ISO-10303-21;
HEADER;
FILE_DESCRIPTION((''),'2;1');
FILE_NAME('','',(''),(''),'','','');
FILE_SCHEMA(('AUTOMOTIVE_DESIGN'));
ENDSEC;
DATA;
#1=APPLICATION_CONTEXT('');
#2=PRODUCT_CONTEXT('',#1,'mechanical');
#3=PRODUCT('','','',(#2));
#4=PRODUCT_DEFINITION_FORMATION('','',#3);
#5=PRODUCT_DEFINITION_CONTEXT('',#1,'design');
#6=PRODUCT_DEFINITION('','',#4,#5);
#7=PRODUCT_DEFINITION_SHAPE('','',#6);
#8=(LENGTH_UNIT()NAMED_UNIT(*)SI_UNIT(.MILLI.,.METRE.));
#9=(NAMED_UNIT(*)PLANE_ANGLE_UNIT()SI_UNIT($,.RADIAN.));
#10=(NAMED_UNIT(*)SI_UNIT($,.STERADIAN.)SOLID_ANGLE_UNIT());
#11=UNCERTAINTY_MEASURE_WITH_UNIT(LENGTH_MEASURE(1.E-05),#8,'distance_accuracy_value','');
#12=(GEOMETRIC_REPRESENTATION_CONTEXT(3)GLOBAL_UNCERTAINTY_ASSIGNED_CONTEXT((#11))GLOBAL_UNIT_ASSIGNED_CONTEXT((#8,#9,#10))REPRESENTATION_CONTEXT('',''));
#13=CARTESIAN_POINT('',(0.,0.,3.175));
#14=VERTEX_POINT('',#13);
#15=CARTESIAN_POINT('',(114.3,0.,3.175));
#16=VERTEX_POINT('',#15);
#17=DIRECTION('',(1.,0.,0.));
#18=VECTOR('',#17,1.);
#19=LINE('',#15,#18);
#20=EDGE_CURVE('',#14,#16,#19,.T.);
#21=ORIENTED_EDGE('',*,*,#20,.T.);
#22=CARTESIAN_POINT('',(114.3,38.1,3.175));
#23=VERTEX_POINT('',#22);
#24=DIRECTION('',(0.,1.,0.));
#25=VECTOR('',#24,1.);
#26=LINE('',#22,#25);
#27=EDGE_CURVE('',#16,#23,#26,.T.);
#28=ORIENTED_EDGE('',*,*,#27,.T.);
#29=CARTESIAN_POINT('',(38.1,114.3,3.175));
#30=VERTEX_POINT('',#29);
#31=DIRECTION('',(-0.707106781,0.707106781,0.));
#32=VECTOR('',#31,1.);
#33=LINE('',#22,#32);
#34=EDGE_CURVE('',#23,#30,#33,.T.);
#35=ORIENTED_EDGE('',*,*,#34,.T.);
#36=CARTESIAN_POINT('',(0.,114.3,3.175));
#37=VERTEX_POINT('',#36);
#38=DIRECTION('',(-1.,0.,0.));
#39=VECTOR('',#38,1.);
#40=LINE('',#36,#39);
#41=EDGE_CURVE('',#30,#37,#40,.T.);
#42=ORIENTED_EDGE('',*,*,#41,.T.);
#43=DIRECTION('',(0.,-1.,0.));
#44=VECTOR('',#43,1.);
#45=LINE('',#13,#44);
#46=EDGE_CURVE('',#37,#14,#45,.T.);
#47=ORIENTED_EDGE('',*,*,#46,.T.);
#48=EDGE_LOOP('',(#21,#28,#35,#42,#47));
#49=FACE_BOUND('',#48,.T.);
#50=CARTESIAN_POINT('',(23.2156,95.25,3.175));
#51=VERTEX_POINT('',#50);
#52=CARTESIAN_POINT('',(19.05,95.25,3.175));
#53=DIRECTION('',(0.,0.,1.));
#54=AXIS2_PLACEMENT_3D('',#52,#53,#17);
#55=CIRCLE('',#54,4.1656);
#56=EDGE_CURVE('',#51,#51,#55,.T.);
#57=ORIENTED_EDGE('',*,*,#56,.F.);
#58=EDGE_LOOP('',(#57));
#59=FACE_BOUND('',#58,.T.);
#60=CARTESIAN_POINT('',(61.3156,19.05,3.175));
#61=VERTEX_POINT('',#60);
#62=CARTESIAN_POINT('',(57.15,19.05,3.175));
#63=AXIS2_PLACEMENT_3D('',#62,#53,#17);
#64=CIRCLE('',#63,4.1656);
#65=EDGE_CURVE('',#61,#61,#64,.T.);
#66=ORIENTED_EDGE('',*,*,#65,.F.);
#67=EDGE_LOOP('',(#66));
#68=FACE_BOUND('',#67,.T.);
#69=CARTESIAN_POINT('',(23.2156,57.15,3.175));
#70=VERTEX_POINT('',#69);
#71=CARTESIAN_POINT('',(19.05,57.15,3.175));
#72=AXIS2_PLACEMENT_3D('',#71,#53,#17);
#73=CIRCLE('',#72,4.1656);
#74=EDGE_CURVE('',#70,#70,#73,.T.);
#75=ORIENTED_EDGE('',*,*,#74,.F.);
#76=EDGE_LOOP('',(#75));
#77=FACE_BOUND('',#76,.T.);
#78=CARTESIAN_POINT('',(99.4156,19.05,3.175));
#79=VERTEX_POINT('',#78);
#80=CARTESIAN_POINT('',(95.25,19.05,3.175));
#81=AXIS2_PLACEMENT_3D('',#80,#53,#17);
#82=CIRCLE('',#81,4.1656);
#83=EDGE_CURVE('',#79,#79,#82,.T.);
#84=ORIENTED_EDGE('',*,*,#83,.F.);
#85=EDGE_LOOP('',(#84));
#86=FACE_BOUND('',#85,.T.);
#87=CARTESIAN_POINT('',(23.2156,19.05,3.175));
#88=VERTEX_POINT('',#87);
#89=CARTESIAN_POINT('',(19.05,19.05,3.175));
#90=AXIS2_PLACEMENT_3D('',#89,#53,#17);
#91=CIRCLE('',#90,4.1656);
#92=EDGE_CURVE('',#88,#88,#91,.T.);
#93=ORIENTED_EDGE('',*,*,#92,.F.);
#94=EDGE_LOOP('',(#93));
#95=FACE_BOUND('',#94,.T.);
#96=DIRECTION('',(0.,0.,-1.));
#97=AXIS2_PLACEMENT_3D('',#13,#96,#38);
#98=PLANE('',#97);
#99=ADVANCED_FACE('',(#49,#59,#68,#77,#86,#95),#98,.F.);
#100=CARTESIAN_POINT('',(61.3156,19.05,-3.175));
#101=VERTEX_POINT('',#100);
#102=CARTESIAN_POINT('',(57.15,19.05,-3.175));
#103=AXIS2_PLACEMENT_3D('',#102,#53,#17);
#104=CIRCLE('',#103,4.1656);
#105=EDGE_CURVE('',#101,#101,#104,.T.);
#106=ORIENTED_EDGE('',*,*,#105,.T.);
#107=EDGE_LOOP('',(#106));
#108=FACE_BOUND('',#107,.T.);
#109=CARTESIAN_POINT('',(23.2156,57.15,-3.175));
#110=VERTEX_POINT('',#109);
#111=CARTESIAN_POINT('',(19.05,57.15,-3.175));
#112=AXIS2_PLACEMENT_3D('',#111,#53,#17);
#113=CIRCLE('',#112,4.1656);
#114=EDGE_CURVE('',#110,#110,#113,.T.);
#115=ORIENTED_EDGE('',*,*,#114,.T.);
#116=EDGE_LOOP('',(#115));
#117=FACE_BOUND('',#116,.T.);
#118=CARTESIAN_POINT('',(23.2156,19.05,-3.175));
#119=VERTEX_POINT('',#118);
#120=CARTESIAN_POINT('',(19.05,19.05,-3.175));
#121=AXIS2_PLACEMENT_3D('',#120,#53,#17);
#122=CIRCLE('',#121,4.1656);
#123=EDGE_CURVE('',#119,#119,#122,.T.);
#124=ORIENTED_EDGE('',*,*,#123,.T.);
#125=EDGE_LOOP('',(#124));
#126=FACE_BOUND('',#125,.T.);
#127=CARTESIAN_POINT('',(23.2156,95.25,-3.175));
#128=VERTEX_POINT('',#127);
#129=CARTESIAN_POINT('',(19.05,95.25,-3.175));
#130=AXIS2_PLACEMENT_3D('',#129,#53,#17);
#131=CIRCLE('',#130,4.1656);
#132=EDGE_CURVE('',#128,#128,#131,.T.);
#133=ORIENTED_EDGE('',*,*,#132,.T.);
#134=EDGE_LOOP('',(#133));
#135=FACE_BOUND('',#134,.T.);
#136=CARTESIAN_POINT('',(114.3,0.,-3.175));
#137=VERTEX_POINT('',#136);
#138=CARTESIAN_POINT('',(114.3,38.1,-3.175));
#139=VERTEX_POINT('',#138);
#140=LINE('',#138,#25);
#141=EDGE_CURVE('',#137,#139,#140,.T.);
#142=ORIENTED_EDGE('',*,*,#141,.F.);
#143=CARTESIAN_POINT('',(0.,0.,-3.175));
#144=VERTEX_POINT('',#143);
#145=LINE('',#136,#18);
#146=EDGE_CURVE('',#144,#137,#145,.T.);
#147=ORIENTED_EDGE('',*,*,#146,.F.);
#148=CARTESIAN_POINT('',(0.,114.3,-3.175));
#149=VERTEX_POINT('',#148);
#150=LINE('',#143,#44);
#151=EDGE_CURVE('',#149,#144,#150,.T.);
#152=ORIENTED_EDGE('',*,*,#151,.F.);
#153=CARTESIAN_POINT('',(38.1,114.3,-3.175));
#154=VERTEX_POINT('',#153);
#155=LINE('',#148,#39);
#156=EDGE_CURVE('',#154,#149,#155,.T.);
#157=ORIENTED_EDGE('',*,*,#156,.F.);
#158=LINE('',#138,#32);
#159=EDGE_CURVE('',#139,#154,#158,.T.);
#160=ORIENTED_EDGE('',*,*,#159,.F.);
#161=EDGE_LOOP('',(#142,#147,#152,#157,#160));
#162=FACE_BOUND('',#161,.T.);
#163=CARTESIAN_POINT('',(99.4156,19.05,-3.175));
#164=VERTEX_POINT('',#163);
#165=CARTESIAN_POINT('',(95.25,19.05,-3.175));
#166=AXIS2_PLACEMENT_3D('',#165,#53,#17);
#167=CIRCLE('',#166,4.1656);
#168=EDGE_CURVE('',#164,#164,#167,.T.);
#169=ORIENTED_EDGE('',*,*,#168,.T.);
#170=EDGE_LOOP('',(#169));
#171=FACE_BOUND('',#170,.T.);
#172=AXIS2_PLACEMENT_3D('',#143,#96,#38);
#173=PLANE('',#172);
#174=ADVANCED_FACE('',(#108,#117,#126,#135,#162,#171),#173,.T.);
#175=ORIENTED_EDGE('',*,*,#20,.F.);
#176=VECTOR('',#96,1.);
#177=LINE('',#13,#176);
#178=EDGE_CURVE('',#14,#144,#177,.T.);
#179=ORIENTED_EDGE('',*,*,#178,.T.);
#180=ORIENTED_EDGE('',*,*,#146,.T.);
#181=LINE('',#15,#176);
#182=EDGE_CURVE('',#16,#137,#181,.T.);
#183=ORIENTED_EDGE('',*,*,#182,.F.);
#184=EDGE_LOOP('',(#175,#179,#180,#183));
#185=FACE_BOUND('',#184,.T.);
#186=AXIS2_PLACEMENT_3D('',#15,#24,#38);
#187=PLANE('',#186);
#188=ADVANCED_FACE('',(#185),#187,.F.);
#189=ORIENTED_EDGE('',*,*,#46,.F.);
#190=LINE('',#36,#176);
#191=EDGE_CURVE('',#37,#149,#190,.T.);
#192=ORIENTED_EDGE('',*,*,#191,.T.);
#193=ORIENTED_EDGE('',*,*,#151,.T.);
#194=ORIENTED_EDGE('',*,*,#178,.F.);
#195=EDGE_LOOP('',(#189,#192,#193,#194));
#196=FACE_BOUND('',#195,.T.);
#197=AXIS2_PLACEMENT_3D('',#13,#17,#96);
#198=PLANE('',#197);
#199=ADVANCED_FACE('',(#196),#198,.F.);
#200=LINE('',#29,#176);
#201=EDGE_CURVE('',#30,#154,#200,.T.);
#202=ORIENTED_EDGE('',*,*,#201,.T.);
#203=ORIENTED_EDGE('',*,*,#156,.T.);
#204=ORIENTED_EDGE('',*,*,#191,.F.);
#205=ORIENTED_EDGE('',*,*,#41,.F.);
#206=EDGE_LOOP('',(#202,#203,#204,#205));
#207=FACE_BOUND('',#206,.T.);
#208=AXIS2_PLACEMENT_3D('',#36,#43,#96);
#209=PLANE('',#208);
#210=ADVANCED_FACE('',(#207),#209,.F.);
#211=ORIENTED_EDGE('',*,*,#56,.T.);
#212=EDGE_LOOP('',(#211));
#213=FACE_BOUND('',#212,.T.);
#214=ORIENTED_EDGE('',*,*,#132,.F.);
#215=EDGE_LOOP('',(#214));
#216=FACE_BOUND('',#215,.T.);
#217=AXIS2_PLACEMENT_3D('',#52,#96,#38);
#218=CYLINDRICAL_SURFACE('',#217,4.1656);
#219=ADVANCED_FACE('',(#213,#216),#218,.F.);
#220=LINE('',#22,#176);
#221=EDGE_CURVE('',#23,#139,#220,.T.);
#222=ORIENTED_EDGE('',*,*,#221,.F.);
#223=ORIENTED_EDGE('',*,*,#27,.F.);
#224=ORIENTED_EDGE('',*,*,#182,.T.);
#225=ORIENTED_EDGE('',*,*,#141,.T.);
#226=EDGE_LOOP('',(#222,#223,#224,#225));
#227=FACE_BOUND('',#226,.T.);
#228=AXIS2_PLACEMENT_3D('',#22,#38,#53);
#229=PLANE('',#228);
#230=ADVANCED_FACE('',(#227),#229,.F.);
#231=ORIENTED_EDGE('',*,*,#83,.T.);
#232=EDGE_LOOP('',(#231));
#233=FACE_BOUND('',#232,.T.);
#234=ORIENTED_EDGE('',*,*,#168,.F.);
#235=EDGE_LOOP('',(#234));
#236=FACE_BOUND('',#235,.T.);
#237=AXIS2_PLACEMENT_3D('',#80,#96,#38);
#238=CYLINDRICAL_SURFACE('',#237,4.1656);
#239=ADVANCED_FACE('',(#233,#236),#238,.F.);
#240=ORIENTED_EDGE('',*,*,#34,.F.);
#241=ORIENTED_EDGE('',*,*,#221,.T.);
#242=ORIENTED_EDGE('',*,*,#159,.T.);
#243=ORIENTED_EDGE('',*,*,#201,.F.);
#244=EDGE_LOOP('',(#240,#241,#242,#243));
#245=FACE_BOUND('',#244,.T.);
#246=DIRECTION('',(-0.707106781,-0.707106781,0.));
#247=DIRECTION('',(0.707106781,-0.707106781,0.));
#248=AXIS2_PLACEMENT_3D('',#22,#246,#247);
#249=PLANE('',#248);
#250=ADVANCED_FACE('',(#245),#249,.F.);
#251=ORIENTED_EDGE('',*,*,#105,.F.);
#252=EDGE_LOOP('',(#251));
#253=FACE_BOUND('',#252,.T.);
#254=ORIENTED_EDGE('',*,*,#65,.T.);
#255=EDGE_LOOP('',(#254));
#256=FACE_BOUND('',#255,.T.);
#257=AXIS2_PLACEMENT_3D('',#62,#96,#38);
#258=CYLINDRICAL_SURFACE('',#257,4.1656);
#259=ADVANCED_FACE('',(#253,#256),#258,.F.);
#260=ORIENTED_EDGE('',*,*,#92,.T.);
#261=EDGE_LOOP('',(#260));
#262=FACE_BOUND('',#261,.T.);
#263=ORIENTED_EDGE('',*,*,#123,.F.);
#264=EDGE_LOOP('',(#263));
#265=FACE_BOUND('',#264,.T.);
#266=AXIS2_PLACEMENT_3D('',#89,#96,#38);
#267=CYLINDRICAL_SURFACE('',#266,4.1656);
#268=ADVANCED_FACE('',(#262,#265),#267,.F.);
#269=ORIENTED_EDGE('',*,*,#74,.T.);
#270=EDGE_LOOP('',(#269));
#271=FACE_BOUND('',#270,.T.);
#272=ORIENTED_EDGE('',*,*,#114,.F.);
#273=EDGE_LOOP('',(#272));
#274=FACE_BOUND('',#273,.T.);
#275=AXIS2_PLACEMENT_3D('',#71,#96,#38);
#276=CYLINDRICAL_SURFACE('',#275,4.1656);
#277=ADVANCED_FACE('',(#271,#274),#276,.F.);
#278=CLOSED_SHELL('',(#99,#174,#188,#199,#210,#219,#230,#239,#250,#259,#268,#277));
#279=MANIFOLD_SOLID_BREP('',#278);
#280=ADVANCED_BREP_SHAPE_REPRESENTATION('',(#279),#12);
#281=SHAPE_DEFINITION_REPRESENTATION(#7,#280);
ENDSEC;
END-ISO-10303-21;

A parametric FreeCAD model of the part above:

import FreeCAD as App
import Part
import Sketcher
from FreeCAD import Vector
Q = App.Units.Quantity

doc = App.newDocument("Part")
body = doc.addObject("PartDesign::Body", "Body")

# Sketch on XY plane
sketch1 = body.newObject("Sketcher::SketchObject", "Sketch")
sketch1.AttachmentSupport = (doc.getObject("XY_Plane"), [""])
sketch1.MapMode = "FlatFace"
sketch1.addGeometry([
    Part.LineSegment(Vector(0, 114.3, 0), Vector(0, 0, 0)),  # 0
    Part.LineSegment(Vector(0, 0, 0), Vector(114.3, 0, 0)),  # 1
    Part.LineSegment(Vector(114.3, 0, 0), Vector(114.3, 38.1, 0)),  # 2
    Part.LineSegment(Vector(114.3, 38.1, 0), Vector(38.1, 114.3, 0)),  # 3
    Part.LineSegment(Vector(38.1, 114.3, 0), Vector(0, 114.3, 0)),  # 4
    Part.Circle(Vector(95.2, 19.1, 0), Vector(0, 0, 1), 4.2),  # 5
    Part.Circle(Vector(57.1, 19.1, 0), Vector(0, 0, 1), 4.2),  # 6
    Part.Circle(Vector(19.1, 19.1, 0), Vector(0, 0, 1), 4.2),  # 7
    Part.Circle(Vector(19.1, 57.1, 0), Vector(0, 0, 1), 4.2),  # 8
    Part.Circle(Vector(19.1, 95.2, 0), Vector(0, 0, 1), 4.2),  # 9
], False)
sketch1.addConstraint([
    Sketcher.Constraint("Coincident", 0, 2, 1, 1),
    Sketcher.Constraint("Coincident", 1, 2, 2, 1),
    Sketcher.Constraint("Coincident", 2, 2, 3, 1),
    Sketcher.Constraint("Coincident", 3, 2, 4, 1),
    Sketcher.Constraint("Coincident", 4, 2, 0, 1),
    Sketcher.Constraint("Vertical", 0),
    Sketcher.Constraint("Horizontal", 1),
    Sketcher.Constraint("Vertical", 2),
    Sketcher.Constraint("Horizontal", 4),
    Sketcher.Constraint("Coincident", 0, 2, -1, 1),
    Sketcher.Constraint("Equal", 5, 6),
    Sketcher.Constraint("Equal", 6, 7),
    Sketcher.Constraint("Equal", 7, 8),
    Sketcher.Constraint("Equal", 8, 9),
    Sketcher.Constraint("Horizontal", 5, 3, 6, 3),
    Sketcher.Constraint("Horizontal", 6, 3, 7, 3),
    Sketcher.Constraint("Vertical", 7, 3, 8, 3),
    Sketcher.Constraint("Vertical", 8, 3, 9, 3),
    Sketcher.Constraint("Equal", 1, 0),
    Sketcher.Constraint("Equal", 4, 2),
    Sketcher.Constraint("Diameter", 5, Q("0.328 in")),
    Sketcher.Constraint("DistanceX", 1, 1, 1, 2, Q("4.5 in")),
    Sketcher.Constraint("DistanceX", 4, 2, 4, 1, Q("1.5 in")),
    Sketcher.Constraint("DistanceX", 7, 3, 5, 3, Q("3 in")),
    Sketcher.Constraint("DistanceY", 7, 3, 9, 3, Q("3 in")),
    Sketcher.Constraint("DistanceX", 6, 3, 5, 3, Q("1.5 in")),
    Sketcher.Constraint("DistanceY", 7, 3, 8, 3, Q("1.5 in")),
    Sketcher.Constraint("DistanceX", -1, 1, 5, 3, Q("3.75 in")),
    Sketcher.Constraint("DistanceY", -1, 1, 5, 3, Q("0.75 in")),
])
pad1 = body.newObject("PartDesign::Pad", "Pad")
pad1.Profile = sketch1
pad1.Length = Q("0.25 in")
pad1.Midplane = True

doc.recompute()
